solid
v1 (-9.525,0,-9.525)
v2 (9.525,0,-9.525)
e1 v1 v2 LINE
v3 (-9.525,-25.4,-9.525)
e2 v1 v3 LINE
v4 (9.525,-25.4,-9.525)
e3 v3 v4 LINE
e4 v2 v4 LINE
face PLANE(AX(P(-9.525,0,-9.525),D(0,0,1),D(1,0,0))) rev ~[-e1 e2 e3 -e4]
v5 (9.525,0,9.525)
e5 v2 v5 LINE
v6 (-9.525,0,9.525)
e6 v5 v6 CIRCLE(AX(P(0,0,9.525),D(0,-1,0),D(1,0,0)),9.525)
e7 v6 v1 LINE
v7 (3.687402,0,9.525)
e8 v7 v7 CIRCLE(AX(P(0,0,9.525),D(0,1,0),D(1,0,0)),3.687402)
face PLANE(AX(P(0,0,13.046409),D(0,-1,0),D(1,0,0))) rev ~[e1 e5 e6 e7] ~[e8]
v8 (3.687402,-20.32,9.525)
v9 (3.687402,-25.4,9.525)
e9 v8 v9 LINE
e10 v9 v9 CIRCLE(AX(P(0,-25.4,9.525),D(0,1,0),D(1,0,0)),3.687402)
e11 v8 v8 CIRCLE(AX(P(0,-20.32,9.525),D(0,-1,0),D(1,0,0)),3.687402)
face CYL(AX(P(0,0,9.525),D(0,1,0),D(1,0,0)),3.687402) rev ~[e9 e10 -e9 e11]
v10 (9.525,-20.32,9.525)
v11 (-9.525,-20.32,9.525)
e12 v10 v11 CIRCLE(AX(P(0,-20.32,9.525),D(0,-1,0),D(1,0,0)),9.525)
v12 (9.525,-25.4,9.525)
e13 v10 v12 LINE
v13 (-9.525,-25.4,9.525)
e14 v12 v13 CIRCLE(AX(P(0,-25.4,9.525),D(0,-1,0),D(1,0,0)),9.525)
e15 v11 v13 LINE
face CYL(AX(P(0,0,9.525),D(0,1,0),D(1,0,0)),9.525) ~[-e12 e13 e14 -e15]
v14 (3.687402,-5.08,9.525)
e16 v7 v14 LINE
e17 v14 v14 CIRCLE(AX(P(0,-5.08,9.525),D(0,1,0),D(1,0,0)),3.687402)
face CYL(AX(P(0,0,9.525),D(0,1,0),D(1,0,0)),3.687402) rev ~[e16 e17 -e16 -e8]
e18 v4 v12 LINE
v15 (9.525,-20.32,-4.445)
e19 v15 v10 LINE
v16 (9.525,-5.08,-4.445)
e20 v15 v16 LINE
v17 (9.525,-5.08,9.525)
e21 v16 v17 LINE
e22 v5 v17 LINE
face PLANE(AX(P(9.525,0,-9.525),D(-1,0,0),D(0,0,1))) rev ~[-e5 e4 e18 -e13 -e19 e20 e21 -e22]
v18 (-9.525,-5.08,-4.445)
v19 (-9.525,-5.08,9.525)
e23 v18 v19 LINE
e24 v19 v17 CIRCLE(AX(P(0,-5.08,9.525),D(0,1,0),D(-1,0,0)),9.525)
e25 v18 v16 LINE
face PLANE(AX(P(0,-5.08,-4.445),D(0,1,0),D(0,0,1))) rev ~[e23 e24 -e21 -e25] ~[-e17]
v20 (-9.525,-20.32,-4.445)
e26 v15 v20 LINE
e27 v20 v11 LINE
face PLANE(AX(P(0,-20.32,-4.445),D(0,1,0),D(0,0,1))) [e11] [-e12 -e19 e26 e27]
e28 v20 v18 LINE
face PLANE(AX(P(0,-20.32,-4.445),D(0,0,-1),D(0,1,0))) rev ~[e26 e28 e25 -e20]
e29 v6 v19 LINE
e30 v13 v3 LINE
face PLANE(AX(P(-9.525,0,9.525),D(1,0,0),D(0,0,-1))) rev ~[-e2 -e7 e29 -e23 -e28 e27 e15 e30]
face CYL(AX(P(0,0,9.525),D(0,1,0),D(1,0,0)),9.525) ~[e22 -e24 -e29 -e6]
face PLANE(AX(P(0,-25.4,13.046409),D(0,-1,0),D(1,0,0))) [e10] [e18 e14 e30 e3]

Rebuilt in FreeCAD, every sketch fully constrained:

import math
import FreeCAD as App
import Part
import Sketcher
Q = App.Units.Quantity


def add_polygon(sketch, points):
    """Adds a closed chain of lines whose ends are joined by coincident constraints."""
    first, n = sketch.GeometryCount, len(points)
    for a, b in zip(points, points[1:] + points[:1]):
        sketch.addGeometry(Part.LineSegment(App.Vector(*a, 0), App.Vector(*b, 0)), False)
    for i in range(n):
        sketch.addConstraint(Sketcher.Constraint("Coincident", first + i, 2, first + (i + 1) % n, 1))

doc = App.newDocument("Part")
body = doc.addObject("PartDesign::Body", "Body")

# Sketch on XZ plane
sketch1 = body.newObject("Sketcher::SketchObject", "Sketch")
sketch1.AttachmentSupport = (doc.getObject("XZ_Plane"), [""])
sketch1.MapMode = "FlatFace"
sketch1.addGeometry([
    Part.ArcOfCircle(Part.Circle(App.Vector(0, 9.525, 0), App.Vector(0, 0, 1), 9.525), math.radians(0), math.radians(180)),  # 0
    Part.LineSegment(App.Vector(-9.525, 9.525, 0), App.Vector(-9.525, -9.525, 0)),  # 1
    Part.LineSegment(App.Vector(-9.525, -9.525, 0), App.Vector(9.525, -9.525, 0)),  # 2
    Part.LineSegment(App.Vector(9.525, -9.525, 0), App.Vector(9.525, 9.525, 0)),  # 3
    Part.Circle(App.Vector(0, 9.525, 0), App.Vector(0, 0, 1), 3.687402),  # 4
], False)
sketch1.addConstraint([
    Sketcher.Constraint("Tangent", 0, 2, 1, 1),
    Sketcher.Constraint("Coincident", 1, 2, 2, 1),
    Sketcher.Constraint("Coincident", 2, 2, 3, 1),
    Sketcher.Constraint("Tangent", 3, 2, 0, 1),
    Sketcher.Constraint("Vertical", 1),
    Sketcher.Constraint("Horizontal", 2),
    Sketcher.Constraint("Vertical", 3),
    Sketcher.Constraint("Coincident", 4, 3, 0, 3),
    Sketcher.Constraint("Symmetric", 0, 2, 2, 2, -1, 1),
    Sketcher.Constraint("Equal", 2, 1),
    Sketcher.Constraint("Radius", 0, Q("0.375 in")),
    Sketcher.Constraint("Diameter", 4, Q("7.374804 mm")),
])
pad1 = body.newObject("PartDesign::Pad", "Pad")
pad1.Profile = sketch1
pad1.Length = Q("1 in")

# Sketch on YZ plane
sketch2 = body.newObject("Sketcher::SketchObject", "Sketch001")
sketch2.AttachmentSupport = (doc.getObject("YZ_Plane"), [""])
sketch2.MapMode = "FlatFace"
add_polygon(sketch2, [(-20.32, 23.133945), (-20.32, -4.445), (-5.08, -4.445), (-5.08, 23.133945)])  # lines 0-3
sketch2.addConstraint([
    Sketcher.Constraint("Vertical", 0),
    Sketcher.Constraint("Horizontal", 1),
    Sketcher.Constraint("Vertical", 2),
    Sketcher.Constraint("Horizontal", 3),
    Sketcher.Constraint("DistanceX", 1, 1, 1, 2, Q("0.6 in")),
    Sketcher.Constraint("DistanceX", 0, 2, -1, 1, Q("0.8 in")),
    Sketcher.Constraint("DistanceY", 0, 2, -1, 1, Q("0.175 in")),
    Sketcher.Constraint("DistanceY", 0, 2, 0, 1, Q("27.578945 mm")),
])
pocket1 = body.newObject("PartDesign::Pocket", "Pocket")
pocket1.Profile = sketch2
pocket1.Type = "ThroughAll"
pocket1.Midplane = True

doc.recompute()
